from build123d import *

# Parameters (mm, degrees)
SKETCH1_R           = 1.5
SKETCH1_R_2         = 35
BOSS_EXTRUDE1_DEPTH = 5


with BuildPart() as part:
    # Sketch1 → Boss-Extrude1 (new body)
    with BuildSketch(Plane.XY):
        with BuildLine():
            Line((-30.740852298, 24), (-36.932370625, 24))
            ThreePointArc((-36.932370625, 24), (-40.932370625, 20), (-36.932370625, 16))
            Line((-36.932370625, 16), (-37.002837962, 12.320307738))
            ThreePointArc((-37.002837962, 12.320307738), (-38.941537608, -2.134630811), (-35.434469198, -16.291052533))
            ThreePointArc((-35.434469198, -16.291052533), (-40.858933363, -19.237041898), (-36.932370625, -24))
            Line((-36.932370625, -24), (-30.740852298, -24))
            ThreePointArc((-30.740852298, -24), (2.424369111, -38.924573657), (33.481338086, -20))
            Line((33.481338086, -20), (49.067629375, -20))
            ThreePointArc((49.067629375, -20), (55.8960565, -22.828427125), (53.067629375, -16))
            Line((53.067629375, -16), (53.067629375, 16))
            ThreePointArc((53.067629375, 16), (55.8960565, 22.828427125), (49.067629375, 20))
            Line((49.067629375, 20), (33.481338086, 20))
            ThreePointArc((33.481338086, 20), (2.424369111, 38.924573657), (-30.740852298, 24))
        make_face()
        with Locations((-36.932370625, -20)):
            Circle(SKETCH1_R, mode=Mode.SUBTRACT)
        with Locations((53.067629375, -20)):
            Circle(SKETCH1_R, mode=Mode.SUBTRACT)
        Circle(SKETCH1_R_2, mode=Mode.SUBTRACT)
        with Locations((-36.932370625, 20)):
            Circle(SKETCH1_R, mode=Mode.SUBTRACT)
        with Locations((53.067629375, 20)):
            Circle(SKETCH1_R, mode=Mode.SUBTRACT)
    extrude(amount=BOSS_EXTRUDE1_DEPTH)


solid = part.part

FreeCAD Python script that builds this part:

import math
import FreeCAD as App
import Part
import Sketcher

doc = App.newDocument("Part")
body = doc.addObject("PartDesign::Body", "Body")

sketch1 = body.newObject("Sketcher::SketchObject", "Sketch")
sketch1.AttachmentSupport = (doc.getObject("XY_Plane"), [""])
sketch1.MapMode = "FlatFace"
sketch1.addGeometry([
    Part.LineSegment(App.Vector(-30.740852, 24, 0), App.Vector(-36.932371, 24, 0)),
    Part.ArcOfCircle(Part.Circle(App.Vector(-36.932371, 20, 0), App.Vector(0, 0, 1), 4), math.radians(90), math.radians(270)),
    Part.LineSegment(App.Vector(-36.932371, 16, 0), App.Vector(-37.002838, 12.320308, 0)),
    Part.ArcOfCircle(Part.Circle(App.Vector(0, 0, 0), App.Vector(0, 0, 1), 39), math.radians(161.584524), math.radians(204.690681)),
    Part.ArcOfCircle(Part.Circle(App.Vector(-36.932371, -20, 0), App.Vector(0, 0, 1), 4), math.radians(68.00811), math.radians(270)),
    Part.LineSegment(App.Vector(-36.932371, -24, 0), App.Vector(-30.740852, -24, 0)),
    Part.ArcOfCircle(Part.Circle(App.Vector(0, 0, 0), App.Vector(0, 0, 1), 39), math.radians(-142.020128), math.radians(-30.851886)),
    Part.LineSegment(App.Vector(33.481338, -20, 0), App.Vector(49.067629, -20, 0)),
    Part.ArcOfCircle(Part.Circle(App.Vector(53.067629, -20, 0), App.Vector(0, 0, 1), 4), math.radians(180), math.radians(450)),
    Part.LineSegment(App.Vector(53.067629, -16, 0), App.Vector(53.067629, 16, 0)),
    Part.ArcOfCircle(Part.Circle(App.Vector(53.067629, 20, 0), App.Vector(0, 0, 1), 4), math.radians(-90), math.radians(180)),
    Part.LineSegment(App.Vector(49.067629, 20, 0), App.Vector(33.481338, 20, 0)),
    Part.ArcOfCircle(Part.Circle(App.Vector(0, 0, 0), App.Vector(0, 0, 1), 39), math.radians(30.851886), math.radians(142.020128)),
    Part.Circle(App.Vector(-36.932371, -20, 0), App.Vector(0, 0, 1), 1.5),
    Part.Circle(App.Vector(53.067629, -20, 0), App.Vector(0, 0, 1), 1.5),
    Part.Circle(App.Vector(0, 0, 0), App.Vector(0, 0, 1), 35),
    Part.Circle(App.Vector(-36.932371, 20, 0), App.Vector(0, 0, 1), 1.5),
    Part.Circle(App.Vector(53.067629, 20, 0), App.Vector(0, 0, 1), 1.5),
], False)
sketch1.addConstraint([
    Sketcher.Constraint("Tangent", 0, 2, 1, 1),
    Sketcher.Constraint("Coincident", 1, 2, 2, 1),
    Sketcher.Constraint("Coincident", 2, 2, 3, 1),
    Sketcher.Constraint("Coincident", 3, 2, 4, 1),
    Sketcher.Constraint("Tangent", 4, 2, 5, 1),
    Sketcher.Constraint("Coincident", 5, 2, 6, 1),
    Sketcher.Constraint("Coincident", 6, 2, 7, 1),
    Sketcher.Constraint("Coincident", 7, 2, 8, 1),
    Sketcher.Constraint("Coincident", 8, 2, 9, 1),
    Sketcher.Constraint("Coincident", 9, 2, 10, 1),
    Sketcher.Constraint("Coincident", 10, 2, 11, 1),
    Sketcher.Constraint("Coincident", 11, 2, 12, 1),
    Sketcher.Constraint("Coincident", 12, 2, 0, 1),
    Sketcher.Constraint("Horizontal", 0),
    Sketcher.Constraint("Horizontal", 5),
    Sketcher.Constraint("Horizontal", 7),
    Sketcher.Constraint("Vertical", 9),
    Sketcher.Constraint("Horizontal", 11),
    Sketcher.Constraint("Coincident", 3, 3, -1, 1),
    Sketcher.Constraint("Coincident", 6, 3, -1, 1),
    Sketcher.Constraint("Coincident", 12, 3, -1, 1),
    Sketcher.Constraint("Coincident", 15, 3, -1, 1),
    Sketcher.Constraint("Coincident", 13, 3, 4, 3),
    Sketcher.Constraint("Coincident", 14, 3, 8, 3),
    Sketcher.Constraint("Coincident", 16, 3, 1, 3),
    Sketcher.Constraint("Coincident", 17, 3, 10, 3),
    Sketcher.Constraint("Equal", 1, 4),
    Sketcher.Constraint("Equal", 3, 6),
    Sketcher.Constraint("Equal", 4, 8),
    Sketcher.Constraint("Equal", 8, 10),
    Sketcher.Constraint("Equal", 6, 12),
    Sketcher.Constraint("Equal", 13, 14),
    Sketcher.Constraint("Equal", 14, 16),
    Sketcher.Constraint("Equal", 16, 17),
    Sketcher.Constraint("Symmetric", 1, 3, 4, 3, -1),
    Sketcher.Constraint("Symmetric", 8, 3, 10, 3, -1),
    Sketcher.Constraint("Horizontal", 4, 3, 8, 3),
    Sketcher.Constraint("Horizontal", 14, 3, 6, 2),
    Sketcher.Constraint("Horizontal", 17, 3, 10, 2),
    Sketcher.Constraint("Vertical", 0, 2, 1, 2),
    Sketcher.Constraint("Vertical", 17, 3, 8, 2),
    Sketcher.Constraint("Diameter", 13, 3.0),
    Sketcher.Constraint("Diameter", 15, 70.0),
    Sketcher.Constraint("Radius", 1, 4.0),
    Sketcher.Constraint("Radius", 3, 39.0),
    Sketcher.Constraint("DistanceY", 9, 1, 9, 2, 32.0),
    Sketcher.Constraint("DistanceX", 4, 3, 8, 3, 90.0),
    Sketcher.Constraint("DistanceX", 0, 2, 0, 1, 6.191518),
    Sketcher.Constraint("DistanceX", 2, 2, 3, 2, 1.568369),
])
pad1 = body.newObject("PartDesign::Pad", "Pad")
pad1.Profile = sketch1
pad1.Length = 5

doc.recompute()
